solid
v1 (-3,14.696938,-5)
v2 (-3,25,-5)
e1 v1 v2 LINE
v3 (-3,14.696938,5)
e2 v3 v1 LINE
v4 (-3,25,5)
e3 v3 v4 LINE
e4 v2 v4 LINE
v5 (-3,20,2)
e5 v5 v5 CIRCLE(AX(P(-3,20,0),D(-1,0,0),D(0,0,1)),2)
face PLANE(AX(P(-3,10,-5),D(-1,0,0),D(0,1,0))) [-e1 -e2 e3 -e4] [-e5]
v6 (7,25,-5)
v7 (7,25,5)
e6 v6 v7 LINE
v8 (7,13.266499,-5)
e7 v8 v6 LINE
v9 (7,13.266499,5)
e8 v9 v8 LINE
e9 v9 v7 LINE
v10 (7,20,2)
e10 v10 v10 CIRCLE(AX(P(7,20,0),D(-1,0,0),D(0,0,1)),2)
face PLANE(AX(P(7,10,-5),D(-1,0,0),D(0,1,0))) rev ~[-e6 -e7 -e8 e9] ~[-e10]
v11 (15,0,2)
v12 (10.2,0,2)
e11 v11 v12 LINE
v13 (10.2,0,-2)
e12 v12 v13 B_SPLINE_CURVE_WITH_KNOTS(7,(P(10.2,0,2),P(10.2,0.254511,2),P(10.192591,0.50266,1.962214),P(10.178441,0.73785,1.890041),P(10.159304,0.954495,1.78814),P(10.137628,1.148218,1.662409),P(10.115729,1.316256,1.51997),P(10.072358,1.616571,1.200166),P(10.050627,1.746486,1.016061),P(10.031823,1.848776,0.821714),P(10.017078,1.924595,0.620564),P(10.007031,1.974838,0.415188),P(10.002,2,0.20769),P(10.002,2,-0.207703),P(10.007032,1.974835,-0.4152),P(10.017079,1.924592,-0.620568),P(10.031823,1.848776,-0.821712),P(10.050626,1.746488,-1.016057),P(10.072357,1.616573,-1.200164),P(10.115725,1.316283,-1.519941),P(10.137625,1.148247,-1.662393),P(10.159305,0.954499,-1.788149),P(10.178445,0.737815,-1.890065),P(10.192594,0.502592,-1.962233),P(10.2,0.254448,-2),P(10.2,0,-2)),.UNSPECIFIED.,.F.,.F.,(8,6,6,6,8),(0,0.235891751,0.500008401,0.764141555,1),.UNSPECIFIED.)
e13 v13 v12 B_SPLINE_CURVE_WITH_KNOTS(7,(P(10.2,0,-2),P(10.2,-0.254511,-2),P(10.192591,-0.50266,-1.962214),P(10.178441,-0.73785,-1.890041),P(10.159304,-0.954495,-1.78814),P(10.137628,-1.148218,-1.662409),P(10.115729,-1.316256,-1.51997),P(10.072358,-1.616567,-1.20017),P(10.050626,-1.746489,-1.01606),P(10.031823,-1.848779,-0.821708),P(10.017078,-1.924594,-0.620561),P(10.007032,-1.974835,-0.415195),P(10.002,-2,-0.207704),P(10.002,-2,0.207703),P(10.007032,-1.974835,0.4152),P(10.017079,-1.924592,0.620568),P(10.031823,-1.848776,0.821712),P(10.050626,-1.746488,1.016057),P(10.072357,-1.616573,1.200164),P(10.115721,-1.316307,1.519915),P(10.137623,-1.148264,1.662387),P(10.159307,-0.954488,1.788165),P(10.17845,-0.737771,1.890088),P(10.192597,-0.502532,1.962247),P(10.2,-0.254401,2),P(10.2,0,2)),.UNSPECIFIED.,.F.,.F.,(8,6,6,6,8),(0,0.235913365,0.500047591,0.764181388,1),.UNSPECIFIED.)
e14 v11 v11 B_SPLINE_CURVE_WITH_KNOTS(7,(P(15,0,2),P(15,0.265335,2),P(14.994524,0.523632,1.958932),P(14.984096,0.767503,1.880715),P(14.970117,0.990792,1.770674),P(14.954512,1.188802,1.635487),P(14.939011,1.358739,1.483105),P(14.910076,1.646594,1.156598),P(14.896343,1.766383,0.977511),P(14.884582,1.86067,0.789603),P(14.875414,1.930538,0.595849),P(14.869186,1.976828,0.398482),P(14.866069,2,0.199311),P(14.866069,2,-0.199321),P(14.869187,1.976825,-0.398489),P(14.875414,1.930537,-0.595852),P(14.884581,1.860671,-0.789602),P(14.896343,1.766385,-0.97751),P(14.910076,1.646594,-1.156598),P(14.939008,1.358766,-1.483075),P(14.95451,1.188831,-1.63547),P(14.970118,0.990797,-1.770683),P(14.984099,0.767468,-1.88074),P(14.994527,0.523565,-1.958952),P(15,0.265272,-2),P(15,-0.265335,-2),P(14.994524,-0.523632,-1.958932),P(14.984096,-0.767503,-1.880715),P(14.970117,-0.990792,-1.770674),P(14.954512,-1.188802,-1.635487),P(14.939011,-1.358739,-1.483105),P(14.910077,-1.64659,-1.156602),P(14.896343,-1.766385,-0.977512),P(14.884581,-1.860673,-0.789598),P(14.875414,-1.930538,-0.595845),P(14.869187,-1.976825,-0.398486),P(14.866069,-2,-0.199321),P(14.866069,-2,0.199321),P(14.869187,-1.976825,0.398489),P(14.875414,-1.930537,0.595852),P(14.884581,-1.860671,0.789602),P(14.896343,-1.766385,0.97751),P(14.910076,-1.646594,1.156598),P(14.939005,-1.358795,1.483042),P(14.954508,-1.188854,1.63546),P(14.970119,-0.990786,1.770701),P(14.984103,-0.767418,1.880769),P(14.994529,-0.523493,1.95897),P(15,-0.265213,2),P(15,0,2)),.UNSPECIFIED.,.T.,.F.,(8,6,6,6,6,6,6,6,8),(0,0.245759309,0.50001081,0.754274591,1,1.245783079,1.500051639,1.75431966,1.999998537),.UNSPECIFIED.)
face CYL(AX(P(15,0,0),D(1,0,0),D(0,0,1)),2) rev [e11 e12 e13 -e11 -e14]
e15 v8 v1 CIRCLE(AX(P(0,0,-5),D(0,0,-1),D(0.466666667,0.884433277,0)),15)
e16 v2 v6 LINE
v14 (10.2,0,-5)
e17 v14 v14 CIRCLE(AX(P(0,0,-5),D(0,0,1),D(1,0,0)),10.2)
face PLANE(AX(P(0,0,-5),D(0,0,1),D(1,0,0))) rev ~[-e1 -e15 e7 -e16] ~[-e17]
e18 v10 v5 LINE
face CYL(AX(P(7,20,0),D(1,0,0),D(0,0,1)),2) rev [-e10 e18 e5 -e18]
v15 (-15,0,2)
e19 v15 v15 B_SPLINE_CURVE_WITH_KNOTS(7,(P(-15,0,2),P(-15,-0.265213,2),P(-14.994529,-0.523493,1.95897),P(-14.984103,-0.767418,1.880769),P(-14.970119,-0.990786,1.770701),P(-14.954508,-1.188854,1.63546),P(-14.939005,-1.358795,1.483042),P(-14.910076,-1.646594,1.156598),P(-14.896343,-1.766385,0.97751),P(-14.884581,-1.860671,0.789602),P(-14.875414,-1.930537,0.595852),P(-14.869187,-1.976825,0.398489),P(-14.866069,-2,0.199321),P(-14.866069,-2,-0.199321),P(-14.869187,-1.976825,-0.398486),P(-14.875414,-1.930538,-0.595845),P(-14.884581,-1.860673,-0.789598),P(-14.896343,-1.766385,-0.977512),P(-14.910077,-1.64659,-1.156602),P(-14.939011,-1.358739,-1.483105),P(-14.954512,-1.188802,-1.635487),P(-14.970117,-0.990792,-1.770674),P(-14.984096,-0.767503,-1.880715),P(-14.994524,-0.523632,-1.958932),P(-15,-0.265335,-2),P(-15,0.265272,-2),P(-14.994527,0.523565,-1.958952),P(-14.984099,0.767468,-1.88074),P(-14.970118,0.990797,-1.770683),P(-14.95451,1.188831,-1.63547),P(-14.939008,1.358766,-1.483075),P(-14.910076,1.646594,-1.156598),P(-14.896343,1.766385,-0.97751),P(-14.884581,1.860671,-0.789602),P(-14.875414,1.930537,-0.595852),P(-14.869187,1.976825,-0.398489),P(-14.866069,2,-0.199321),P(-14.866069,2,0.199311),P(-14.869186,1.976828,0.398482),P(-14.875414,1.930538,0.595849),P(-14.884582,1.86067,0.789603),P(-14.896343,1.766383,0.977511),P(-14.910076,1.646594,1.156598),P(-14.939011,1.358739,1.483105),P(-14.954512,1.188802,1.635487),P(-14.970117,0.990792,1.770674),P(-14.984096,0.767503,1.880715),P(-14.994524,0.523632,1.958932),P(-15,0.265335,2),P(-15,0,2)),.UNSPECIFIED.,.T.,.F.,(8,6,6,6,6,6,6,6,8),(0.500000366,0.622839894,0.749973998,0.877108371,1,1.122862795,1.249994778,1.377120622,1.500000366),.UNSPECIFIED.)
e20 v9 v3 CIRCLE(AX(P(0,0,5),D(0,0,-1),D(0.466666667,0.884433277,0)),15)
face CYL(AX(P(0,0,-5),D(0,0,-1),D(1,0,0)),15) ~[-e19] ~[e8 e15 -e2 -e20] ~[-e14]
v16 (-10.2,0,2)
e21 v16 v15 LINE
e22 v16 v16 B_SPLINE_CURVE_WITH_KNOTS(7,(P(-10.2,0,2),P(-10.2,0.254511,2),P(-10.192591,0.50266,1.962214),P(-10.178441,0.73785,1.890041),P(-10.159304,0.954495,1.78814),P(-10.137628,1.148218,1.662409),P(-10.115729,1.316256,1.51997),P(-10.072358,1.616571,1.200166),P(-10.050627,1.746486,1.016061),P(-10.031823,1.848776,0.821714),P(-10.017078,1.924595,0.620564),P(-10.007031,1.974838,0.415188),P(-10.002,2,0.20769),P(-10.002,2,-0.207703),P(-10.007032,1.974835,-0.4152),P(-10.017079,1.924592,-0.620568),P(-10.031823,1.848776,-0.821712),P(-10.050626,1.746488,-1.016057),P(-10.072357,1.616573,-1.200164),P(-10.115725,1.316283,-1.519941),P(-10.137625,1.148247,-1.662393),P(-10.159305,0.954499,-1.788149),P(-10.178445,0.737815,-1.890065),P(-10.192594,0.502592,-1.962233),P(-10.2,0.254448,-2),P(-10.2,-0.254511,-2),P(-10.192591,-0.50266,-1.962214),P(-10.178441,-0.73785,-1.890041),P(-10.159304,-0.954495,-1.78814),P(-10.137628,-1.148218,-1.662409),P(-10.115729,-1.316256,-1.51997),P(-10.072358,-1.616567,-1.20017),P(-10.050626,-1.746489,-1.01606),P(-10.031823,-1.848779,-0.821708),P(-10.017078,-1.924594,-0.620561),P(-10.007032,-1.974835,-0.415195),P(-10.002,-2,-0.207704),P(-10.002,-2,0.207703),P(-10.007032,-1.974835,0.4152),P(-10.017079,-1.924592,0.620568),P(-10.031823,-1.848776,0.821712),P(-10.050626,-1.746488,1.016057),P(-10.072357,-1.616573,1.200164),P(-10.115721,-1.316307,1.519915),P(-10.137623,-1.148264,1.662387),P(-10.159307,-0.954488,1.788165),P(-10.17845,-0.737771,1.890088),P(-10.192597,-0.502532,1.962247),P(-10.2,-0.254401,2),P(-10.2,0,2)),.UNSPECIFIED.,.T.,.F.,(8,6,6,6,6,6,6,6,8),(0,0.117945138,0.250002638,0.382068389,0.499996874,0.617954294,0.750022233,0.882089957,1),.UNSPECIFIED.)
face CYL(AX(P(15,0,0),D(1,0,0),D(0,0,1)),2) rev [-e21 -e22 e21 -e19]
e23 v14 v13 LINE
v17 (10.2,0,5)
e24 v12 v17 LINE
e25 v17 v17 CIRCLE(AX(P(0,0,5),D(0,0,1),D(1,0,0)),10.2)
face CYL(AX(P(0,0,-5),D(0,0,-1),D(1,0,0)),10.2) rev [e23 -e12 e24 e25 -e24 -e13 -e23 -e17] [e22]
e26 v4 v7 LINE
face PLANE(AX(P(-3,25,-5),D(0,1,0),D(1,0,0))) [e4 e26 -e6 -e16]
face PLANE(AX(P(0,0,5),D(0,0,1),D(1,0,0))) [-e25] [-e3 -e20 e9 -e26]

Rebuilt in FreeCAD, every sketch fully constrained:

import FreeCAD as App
import Part
import Sketcher
from FreeCAD import Vector


def add_polygon(sketch, points):
    """Adds a closed chain of lines whose ends are joined by coincident constraints."""
    first, n = sketch.GeometryCount, len(points)
    for a, b in zip(points, points[1:] + points[:1]):
        sketch.addGeometry(Part.LineSegment(App.Vector(*a, 0), App.Vector(*b, 0)), False)
    for i in range(n):
        sketch.addConstraint(Sketcher.Constraint("Coincident", first + i, 2, first + (i + 1) % n, 1))

doc = App.newDocument("Part")
params = doc.addObject("Spreadsheet::Sheet", "Params")
for row, (alias, value) in enumerate([
    ("sketch1_diameter", "4 mm"),
    ("pad1_length", "10 mm"),
    ("sketch2_diameter", "4 mm"),
    ("pad2_length", "30 mm"),
    ("sketch3_diameter", "20.4 mm"),
    ("pad3_length", "10 mm"),
    ("sketch4_width", "10 mm"),
    ("sketch4_height", "15 mm"),
    ("pad4_length", "10 mm"),
    ("sketch5_diameter", "30 mm"),
    ("pad5_length", "10 mm"),
], start=1):
    params.set(f"A{row}", alias)
    params.set(f"B{row}", "=" + value)
    params.setAlias(f"B{row}", alias)

body = doc.addObject("PartDesign::Body", "Body")

# Sketch on YZ plane
sketch1 = doc.addObject("Sketcher::SketchObject", "Sketch")
body.addObject(sketch1)
sketch1.AttachmentSupport = (doc.YZ_Plane, [""])
sketch1.MapMode = "FlatFace"
sketch1.AttachmentOffset = App.Placement(Vector(0, 0, 7), App.Rotation())
sketch1.addGeometry(Part.Circle(Vector(20, 0, 0), Vector(0, 0, 1), 2), False)
sketch1.addConstraint(Sketcher.Constraint("PointOnObject", 0, 3, -1))
sketch1.addConstraint(Sketcher.Constraint("Diameter", 0, 4.0))
sketch1.addConstraint(Sketcher.Constraint("DistanceX", -1, 1, 0, 3, 20.0))
sketch1.setExpression("Constraints[1]", "Params.sketch1_diameter")
pad1 = doc.addObject("PartDesign::Pad", "Pad")
body.addObject(pad1)
pad1.Profile = sketch1
pad1.setExpression("Length", "Params.pad1_length")
pad1.Reversed = True
body2 = doc.addObject("PartDesign::Body", "Body001")

# Sketch on YZ plane
sketch2 = doc.addObject("Sketcher::SketchObject", "Sketch001")
body2.addObject(sketch2)
sketch2.AttachmentSupport = (doc.getObject("YZ_Plane001"), [""])
sketch2.MapMode = "FlatFace"
sketch2.AttachmentOffset = App.Placement(Vector(0, 0, 15), App.Rotation())
sketch2.addGeometry(Part.Circle(Vector(0, 0, 0), Vector(0, 0, 1), 2), False)
sketch2.addConstraint(Sketcher.Constraint("Coincident", 0, 3, -1, 1))
sketch2.addConstraint(Sketcher.Constraint("Diameter", 0, 4.0))
sketch2.setExpression("Constraints[1]", "Params.sketch2_diameter")
pad2 = doc.addObject("PartDesign::Pad", "Pad001")
body2.addObject(pad2)
pad2.Profile = sketch2
pad2.setExpression("Length", "Params.pad2_length")
pad2.Reversed = True
body3 = doc.addObject("PartDesign::Body", "Body002")
body3.AllowCompound = True

# Sketch on XY plane
sketch3 = doc.addObject("Sketcher::SketchObject", "Sketch002")
body3.addObject(sketch3)
sketch3.AttachmentSupport = (doc.getObject("XY_Plane002"), [""])
sketch3.MapMode = "FlatFace"
sketch3.AttachmentOffset = App.Placement(Vector(0, 0, -5), App.Rotation())
sketch3.addGeometry(Part.Circle(Vector(0, 0, 0), Vector(0, 0, 1), 10.2), False)
sketch3.addConstraint(Sketcher.Constraint("Coincident", 0, 3, -1, 1))
sketch3.addConstraint(Sketcher.Constraint("Diameter", 0, 20.4))
sketch3.setExpression("Constraints[1]", "Params.sketch3_diameter")
pad3 = doc.addObject("PartDesign::Pad", "Pad002")
body3.addObject(pad3)
pad3.Profile = sketch3
pad3.setExpression("Length", "Params.pad3_length")
doc.recompute()

boolean = doc.addObject("PartDesign::Boolean", "Boolean")
body3.addObject(boolean)
boolean.Type = "Fuse"
boolean.addObjects([body])
doc.recompute()

boolean2 = doc.addObject("PartDesign::Boolean", "Boolean001")
body3.addObject(boolean2)
boolean2.Type = "Fuse"
boolean2.addObjects([body2])
body4 = doc.addObject("PartDesign::Body", "Body003")

# Sketch on XY plane
sketch4 = doc.addObject("Sketcher::SketchObject", "Sketch003")
body4.addObject(sketch4)
sketch4.AttachmentSupport = (doc.getObject("XY_Plane003"), [""])
sketch4.MapMode = "FlatFace"
sketch4.AttachmentOffset = App.Placement(Vector(0, 0, -5), App.Rotation())
add_polygon(sketch4, [(-3, 25), (-3, 10), (7, 10), (7, 25)])  # lines 0-3
sketch4.addConstraint(Sketcher.Constraint("Vertical", 0))
sketch4.addConstraint(Sketcher.Constraint("Horizontal", 1))
sketch4.addConstraint(Sketcher.Constraint("Vertical", 2))
sketch4.addConstraint(Sketcher.Constraint("Horizontal", 3))
sketch4.addConstraint(Sketcher.Constraint("DistanceX", 1, 1, 1, 2, 10.0))
sketch4.addConstraint(Sketcher.Constraint("DistanceY", 0, 2, 0, 1, 15.0))
sketch4.addConstraint(Sketcher.Constraint("DistanceX", 0, 2, -1, 1, 3.0))
sketch4.addConstraint(Sketcher.Constraint("DistanceY", -1, 1, 0, 2, 10.0))
sketch4.setExpression("Constraints[8]", "Params.sketch4_width")
sketch4.setExpression("Constraints[9]", "Params.sketch4_height")
pad4 = doc.addObject("PartDesign::Pad", "Pad003")
body4.addObject(pad4)
pad4.Profile = sketch4
pad4.setExpression("Length", "Params.pad4_length")
body5 = doc.addObject("PartDesign::Body", "Body004")

# Sketch on XY plane
sketch5 = doc.addObject("Sketcher::SketchObject", "Sketch004")
body5.addObject(sketch5)
sketch5.AttachmentSupport = (doc.getObject("XY_Plane004"), [""])
sketch5.MapMode = "FlatFace"
sketch5.AttachmentOffset = App.Placement(Vector(0, 0, -5), App.Rotation())
sketch5.addGeometry(Part.Circle(Vector(0, 0, 0), Vector(0, 0, 1), 15), False)
sketch5.addConstraint(Sketcher.Constraint("Coincident", 0, 3, -1, 1))
sketch5.addConstraint(Sketcher.Constraint("Diameter", 0, 30.0))
sketch5.setExpression("Constraints[1]", "Params.sketch5_diameter")
pad5 = doc.addObject("PartDesign::Pad", "Pad004")
body5.addObject(pad5)
pad5.Profile = sketch5
pad5.setExpression("Length", "Params.pad5_length")
doc.recompute()

boolean3 = doc.addObject("PartDesign::Boolean", "Boolean002")
body5.addObject(boolean3)
boolean3.Type = "Fuse"
boolean3.addObjects([body4])
doc.recompute()

boolean4 = doc.addObject("PartDesign::Boolean", "Boolean003")
body5.addObject(boolean4)
boolean4.Type = "Cut"
boolean4.addObjects([body3])

doc.recompute()
